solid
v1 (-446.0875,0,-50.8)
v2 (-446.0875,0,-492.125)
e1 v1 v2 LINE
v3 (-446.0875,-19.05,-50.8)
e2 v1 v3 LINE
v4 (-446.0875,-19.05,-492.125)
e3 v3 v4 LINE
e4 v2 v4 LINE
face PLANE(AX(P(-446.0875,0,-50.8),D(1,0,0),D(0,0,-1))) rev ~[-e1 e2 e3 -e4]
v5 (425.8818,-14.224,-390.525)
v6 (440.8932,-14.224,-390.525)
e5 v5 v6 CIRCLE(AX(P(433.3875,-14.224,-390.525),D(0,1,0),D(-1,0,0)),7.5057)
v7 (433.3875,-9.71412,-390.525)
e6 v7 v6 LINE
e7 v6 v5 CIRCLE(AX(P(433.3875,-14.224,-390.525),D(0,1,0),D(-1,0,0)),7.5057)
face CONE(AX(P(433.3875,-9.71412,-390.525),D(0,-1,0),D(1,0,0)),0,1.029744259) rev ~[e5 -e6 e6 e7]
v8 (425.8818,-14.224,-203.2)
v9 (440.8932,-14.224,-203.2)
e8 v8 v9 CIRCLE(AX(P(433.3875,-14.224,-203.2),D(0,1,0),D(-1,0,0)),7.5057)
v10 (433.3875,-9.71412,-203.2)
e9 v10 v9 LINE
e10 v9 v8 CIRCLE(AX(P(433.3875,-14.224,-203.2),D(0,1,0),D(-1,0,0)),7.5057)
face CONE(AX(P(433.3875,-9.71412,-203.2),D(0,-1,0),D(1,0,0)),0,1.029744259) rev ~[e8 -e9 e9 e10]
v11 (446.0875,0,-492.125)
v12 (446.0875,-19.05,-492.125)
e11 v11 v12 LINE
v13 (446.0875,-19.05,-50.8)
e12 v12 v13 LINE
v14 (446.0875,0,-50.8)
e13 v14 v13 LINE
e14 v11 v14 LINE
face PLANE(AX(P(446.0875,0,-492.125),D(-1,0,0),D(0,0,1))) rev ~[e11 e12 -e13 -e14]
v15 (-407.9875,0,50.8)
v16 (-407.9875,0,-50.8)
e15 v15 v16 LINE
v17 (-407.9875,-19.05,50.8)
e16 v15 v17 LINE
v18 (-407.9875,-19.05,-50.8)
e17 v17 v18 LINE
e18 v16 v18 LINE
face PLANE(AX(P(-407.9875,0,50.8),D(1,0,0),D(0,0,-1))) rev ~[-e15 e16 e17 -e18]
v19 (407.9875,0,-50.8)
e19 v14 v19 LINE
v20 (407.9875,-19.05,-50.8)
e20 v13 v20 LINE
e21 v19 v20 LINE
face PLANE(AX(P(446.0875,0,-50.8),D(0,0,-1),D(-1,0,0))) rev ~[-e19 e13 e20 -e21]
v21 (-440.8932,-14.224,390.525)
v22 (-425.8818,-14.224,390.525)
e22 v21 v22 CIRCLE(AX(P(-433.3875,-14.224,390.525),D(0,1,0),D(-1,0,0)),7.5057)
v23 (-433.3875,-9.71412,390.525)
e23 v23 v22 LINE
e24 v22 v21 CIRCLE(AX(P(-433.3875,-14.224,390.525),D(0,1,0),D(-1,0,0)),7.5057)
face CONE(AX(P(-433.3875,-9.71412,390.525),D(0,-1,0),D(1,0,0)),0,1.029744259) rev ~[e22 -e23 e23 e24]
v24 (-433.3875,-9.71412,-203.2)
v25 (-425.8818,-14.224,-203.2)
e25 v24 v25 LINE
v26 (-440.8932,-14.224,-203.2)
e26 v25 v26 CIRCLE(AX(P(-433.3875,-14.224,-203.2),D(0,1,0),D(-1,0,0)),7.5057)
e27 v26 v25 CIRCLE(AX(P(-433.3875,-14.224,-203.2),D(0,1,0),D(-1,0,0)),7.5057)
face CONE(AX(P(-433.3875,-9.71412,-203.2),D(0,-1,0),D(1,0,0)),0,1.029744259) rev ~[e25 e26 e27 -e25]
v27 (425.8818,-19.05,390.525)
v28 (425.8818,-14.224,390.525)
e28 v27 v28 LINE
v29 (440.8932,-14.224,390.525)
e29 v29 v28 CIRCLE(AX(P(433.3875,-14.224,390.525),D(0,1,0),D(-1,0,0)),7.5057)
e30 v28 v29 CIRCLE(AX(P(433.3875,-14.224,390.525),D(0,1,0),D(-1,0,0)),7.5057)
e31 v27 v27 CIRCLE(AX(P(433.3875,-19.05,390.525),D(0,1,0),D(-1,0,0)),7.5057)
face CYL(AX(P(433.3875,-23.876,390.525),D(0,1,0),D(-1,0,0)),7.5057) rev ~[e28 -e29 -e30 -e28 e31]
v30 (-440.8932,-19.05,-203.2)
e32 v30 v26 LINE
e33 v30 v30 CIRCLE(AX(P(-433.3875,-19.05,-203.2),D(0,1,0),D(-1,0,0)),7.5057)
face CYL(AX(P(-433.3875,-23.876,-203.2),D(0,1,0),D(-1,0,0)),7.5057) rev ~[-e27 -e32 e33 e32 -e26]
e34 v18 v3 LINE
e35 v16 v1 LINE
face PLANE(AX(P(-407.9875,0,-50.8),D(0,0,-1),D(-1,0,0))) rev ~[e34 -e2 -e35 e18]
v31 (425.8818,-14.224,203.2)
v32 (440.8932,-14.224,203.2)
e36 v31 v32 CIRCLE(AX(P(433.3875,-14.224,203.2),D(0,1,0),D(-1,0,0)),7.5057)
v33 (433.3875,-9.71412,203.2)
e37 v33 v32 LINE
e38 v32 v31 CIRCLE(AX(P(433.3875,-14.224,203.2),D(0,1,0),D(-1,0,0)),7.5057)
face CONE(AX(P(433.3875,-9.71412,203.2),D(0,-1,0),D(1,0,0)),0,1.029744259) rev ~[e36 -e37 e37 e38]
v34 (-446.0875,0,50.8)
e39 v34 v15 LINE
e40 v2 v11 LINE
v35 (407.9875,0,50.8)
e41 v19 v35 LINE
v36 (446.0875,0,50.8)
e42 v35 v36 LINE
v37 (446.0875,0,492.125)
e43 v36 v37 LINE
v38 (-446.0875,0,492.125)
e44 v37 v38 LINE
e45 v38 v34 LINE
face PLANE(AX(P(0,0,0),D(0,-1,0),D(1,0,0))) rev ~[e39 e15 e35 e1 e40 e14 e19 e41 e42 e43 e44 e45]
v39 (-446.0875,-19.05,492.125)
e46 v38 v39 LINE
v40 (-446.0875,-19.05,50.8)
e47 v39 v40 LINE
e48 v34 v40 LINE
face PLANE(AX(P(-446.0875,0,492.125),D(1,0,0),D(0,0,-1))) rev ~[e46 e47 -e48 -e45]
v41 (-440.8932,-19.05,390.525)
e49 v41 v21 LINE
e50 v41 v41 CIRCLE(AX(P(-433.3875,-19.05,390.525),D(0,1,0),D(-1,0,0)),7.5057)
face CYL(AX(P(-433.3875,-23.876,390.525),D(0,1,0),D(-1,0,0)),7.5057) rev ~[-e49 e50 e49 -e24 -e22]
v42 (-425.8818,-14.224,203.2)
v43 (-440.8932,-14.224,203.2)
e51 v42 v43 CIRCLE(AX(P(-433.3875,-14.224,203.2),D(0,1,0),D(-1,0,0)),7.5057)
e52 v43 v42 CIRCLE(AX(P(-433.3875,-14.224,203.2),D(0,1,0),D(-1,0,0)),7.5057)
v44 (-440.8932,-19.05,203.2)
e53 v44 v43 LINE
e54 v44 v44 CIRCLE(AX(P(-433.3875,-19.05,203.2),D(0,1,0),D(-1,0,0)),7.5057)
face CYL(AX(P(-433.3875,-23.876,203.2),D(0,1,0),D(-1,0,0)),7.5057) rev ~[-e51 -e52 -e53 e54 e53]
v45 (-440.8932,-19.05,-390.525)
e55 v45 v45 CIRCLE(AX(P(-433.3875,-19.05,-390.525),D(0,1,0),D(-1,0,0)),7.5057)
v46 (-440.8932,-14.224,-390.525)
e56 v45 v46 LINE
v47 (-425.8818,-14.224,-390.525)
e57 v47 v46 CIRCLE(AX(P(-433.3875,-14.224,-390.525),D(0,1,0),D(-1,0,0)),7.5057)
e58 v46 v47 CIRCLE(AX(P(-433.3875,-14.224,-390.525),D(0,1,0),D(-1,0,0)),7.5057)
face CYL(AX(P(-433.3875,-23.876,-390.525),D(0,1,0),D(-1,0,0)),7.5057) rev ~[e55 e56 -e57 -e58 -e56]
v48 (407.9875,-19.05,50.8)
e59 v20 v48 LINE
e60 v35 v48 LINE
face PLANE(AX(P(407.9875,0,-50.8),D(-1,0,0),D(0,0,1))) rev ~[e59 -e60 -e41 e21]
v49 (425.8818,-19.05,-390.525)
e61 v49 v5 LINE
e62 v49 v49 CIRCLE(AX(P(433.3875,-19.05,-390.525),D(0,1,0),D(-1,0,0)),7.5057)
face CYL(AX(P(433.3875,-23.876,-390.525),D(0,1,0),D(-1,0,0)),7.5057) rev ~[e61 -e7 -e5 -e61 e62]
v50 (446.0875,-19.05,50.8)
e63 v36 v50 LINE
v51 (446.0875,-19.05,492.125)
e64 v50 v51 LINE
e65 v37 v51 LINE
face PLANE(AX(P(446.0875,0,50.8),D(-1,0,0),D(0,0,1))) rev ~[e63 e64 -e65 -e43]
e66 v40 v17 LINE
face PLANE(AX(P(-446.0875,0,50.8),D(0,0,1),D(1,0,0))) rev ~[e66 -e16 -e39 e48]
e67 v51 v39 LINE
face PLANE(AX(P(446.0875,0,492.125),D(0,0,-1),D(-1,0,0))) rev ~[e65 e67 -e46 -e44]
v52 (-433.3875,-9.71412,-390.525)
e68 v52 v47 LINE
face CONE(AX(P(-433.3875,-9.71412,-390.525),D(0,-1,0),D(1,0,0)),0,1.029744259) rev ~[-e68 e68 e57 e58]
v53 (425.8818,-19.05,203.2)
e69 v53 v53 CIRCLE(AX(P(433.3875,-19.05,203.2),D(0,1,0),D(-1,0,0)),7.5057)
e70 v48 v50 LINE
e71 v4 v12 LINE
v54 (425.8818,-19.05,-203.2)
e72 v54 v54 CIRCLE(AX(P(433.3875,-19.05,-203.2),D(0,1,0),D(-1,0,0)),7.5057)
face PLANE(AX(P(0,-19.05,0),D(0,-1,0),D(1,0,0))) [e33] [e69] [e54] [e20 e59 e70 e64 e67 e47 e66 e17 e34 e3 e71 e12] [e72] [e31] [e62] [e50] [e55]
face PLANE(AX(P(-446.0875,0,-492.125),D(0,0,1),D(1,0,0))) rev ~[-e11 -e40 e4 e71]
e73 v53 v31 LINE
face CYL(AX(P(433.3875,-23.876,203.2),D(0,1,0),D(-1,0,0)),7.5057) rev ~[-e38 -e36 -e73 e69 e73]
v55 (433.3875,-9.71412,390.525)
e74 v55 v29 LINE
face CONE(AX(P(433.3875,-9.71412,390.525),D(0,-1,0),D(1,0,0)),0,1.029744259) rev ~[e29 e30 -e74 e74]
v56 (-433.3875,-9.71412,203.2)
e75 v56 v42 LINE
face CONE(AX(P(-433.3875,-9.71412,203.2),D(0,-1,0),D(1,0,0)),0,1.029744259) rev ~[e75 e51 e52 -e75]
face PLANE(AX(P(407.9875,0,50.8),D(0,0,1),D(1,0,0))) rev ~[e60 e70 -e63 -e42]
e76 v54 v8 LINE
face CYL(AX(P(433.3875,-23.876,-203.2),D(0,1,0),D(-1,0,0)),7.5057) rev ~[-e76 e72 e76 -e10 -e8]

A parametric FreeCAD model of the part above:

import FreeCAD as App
import Part
import Sketcher

V = App.Vector
Q = App.Units.Quantity


def add_polygon(sketch, points):
    """Adds a closed chain of lines whose ends are joined by coincident constraints."""
    first, n = sketch.GeometryCount, len(points)
    for a, b in zip(points, points[1:] + points[:1]):
        sketch.addGeometry(Part.LineSegment(App.Vector(*a, 0), App.Vector(*b, 0)), False)
    for i in range(n):
        sketch.addConstraint(Sketcher.Constraint("Coincident", first + i, 2, first + (i + 1) % n, 1))

doc = App.newDocument("Part")
body = doc.addObject("PartDesign::Body", "Body")

# Sketch on XZ plane
sketch1 = doc.addObject("Sketcher::SketchObject", "Sketch")
body.addObject(sketch1)
sketch1.AttachmentSupport = (doc.XZ_Plane, [""])
sketch1.MapMode = "FlatFace"
add_polygon(sketch1, [(446.0875, 50.8), (446.0875, 492.125), (-446.0875, 492.125), (-446.0875, 50.8), (-407.9875, 50.8), (-407.9875, -50.8), (-446.0875, -50.8), (-446.0875, -492.125), (446.0875, -492.125), (446.0875, -50.8), (407.9875, -50.8), (407.9875, 50.8)])  # lines 0-11
sketch1.addConstraint(Sketcher.Constraint("Vertical", 0))
sketch1.addConstraint(Sketcher.Constraint("Horizontal", 1))
sketch1.addConstraint(Sketcher.Constraint("Vertical", 2))
sketch1.addConstraint(Sketcher.Constraint("Horizontal", 3))
sketch1.addConstraint(Sketcher.Constraint("Vertical", 4))
sketch1.addConstraint(Sketcher.Constraint("Horizontal", 5))
sketch1.addConstraint(Sketcher.Constraint("Vertical", 6))
sketch1.addConstraint(Sketcher.Constraint("Horizontal", 7))
sketch1.addConstraint(Sketcher.Constraint("Vertical", 8))
sketch1.addConstraint(Sketcher.Constraint("Horizontal", 9))
sketch1.addConstraint(Sketcher.Constraint("Vertical", 10))
sketch1.addConstraint(Sketcher.Constraint("Horizontal", 11))
sketch1.addConstraint(Sketcher.Constraint("Symmetric", 0, 2, 6, 2, -1, 1))
sketch1.addConstraint(Sketcher.Constraint("Symmetric", 2, 2, 8, 2, -1, 1))
sketch1.addConstraint(Sketcher.Constraint("Symmetric", 4, 2, 10, 2, -1, 1))
sketch1.addConstraint(Sketcher.Constraint("Symmetric", 5, 2, 8, 2, -2))
sketch1.addConstraint(Sketcher.Constraint("DistanceY", 4, 2, 4, 1, Q("4 in")))
sketch1.addConstraint(Sketcher.Constraint("DistanceX", 3, 1, 3, 2, Q("1.5 in")))
sketch1.addConstraint(Sketcher.Constraint("DistanceX", 1, 2, 1, 1, Q("35.125 in")))
sketch1.addConstraint(Sketcher.Constraint("DistanceY", 0, 1, 0, 2, Q("17.375 in")))
pad1 = doc.addObject("PartDesign::Pad", "Pad")
body.addObject(pad1)
pad1.Profile = sketch1
pad1.Length = Q("0.75 in")

# Sketch on XZ plane
sketch2 = doc.addObject("Sketcher::SketchObject", "Sketch001")
body.addObject(sketch2)
sketch2.AttachmentSupport = (doc.XZ_Plane, [""])
sketch2.MapMode = "FlatFace"
sketch2.AttachmentOffset = App.Placement(V(0, 0, 0.75 * 25.4), App.Rotation())
sketch2.addGeometry(Part.Circle(V(-433.3875, 390.525, 0), V(0, 0, 1), 7.5057), False)
sketch2.addGeometry(Part.Circle(V(-433.3875, 203.2, 0), V(0, 0, 1), 7.5057), False)
sketch2.addGeometry(Part.Circle(V(-433.3875, -203.2, 0), V(0, 0, 1), 7.5057), False)
sketch2.addGeometry(Part.Circle(V(-433.3875, -390.525, 0), V(0, 0, 1), 7.5057), False)
sketch2.addGeometry(Part.Circle(V(433.3875, 390.525, 0), V(0, 0, 1), 7.5057), False)
sketch2.addGeometry(Part.Circle(V(433.3875, 203.2, 0), V(0, 0, 1), 7.5057), False)
sketch2.addGeometry(Part.Circle(V(433.3875, -203.2, 0), V(0, 0, 1), 7.5057), False)
sketch2.addGeometry(Part.Circle(V(433.3875, -390.525, 0), V(0, 0, 1), 7.5057), False)
sketch2.addConstraint(Sketcher.Constraint("Equal", 0, 1))
sketch2.addConstraint(Sketcher.Constraint("Equal", 1, 2))
sketch2.addConstraint(Sketcher.Constraint("Equal", 2, 3))
sketch2.addConstraint(Sketcher.Constraint("Equal", 3, 4))
sketch2.addConstraint(Sketcher.Constraint("Equal", 4, 5))
sketch2.addConstraint(Sketcher.Constraint("Equal", 5, 6))
sketch2.addConstraint(Sketcher.Constraint("Equal", 6, 7))
sketch2.addConstraint(Sketcher.Constraint("Symmetric", 3, 3, 4, 3, -1, 1))
sketch2.addConstraint(Sketcher.Constraint("Symmetric", 2, 3, 5, 3, -1, 1))
sketch2.addConstraint(Sketcher.Constraint("Symmetric", 1, 3, 6, 3, -1, 1))
sketch2.addConstraint(Sketcher.Constraint("Symmetric", 0, 3, 7, 3, -1, 1))
sketch2.addConstraint(Sketcher.Constraint("Symmetric", 0, 3, 4, 3, -2))
sketch2.addConstraint(Sketcher.Constraint("Symmetric", 1, 3, 5, 3, -2))
sketch2.addConstraint(Sketcher.Constraint("Vertical", 0, 3, 1, 3))
sketch2.addConstraint(Sketcher.Constraint("Diameter", 0, Q("0.591 in")))
sketch2.addConstraint(Sketcher.Constraint("DistanceY", -1, 1, 1, 3, Q("8 in")))
sketch2.addConstraint(Sketcher.Constraint("DistanceY", 3, 3, 0, 3, Q("30.75 in")))
sketch2.addConstraint(Sketcher.Constraint("DistanceX", 0, 3, -1, 1, Q("17.0625 in")))
doc.recompute()
hole = doc.addObject("PartDesign::Hole", "Hole")
body.addObject(hole)
hole.Profile = sketch2
hole.ThreadType = "None"
hole.Diameter = Q("0.591 in")
hole.DepthType = "Dimension"
hole.Depth = Q("0.19 in")
hole.DrillPoint = "Angled"
hole.DrillPointAngle = 118

doc.recompute()
